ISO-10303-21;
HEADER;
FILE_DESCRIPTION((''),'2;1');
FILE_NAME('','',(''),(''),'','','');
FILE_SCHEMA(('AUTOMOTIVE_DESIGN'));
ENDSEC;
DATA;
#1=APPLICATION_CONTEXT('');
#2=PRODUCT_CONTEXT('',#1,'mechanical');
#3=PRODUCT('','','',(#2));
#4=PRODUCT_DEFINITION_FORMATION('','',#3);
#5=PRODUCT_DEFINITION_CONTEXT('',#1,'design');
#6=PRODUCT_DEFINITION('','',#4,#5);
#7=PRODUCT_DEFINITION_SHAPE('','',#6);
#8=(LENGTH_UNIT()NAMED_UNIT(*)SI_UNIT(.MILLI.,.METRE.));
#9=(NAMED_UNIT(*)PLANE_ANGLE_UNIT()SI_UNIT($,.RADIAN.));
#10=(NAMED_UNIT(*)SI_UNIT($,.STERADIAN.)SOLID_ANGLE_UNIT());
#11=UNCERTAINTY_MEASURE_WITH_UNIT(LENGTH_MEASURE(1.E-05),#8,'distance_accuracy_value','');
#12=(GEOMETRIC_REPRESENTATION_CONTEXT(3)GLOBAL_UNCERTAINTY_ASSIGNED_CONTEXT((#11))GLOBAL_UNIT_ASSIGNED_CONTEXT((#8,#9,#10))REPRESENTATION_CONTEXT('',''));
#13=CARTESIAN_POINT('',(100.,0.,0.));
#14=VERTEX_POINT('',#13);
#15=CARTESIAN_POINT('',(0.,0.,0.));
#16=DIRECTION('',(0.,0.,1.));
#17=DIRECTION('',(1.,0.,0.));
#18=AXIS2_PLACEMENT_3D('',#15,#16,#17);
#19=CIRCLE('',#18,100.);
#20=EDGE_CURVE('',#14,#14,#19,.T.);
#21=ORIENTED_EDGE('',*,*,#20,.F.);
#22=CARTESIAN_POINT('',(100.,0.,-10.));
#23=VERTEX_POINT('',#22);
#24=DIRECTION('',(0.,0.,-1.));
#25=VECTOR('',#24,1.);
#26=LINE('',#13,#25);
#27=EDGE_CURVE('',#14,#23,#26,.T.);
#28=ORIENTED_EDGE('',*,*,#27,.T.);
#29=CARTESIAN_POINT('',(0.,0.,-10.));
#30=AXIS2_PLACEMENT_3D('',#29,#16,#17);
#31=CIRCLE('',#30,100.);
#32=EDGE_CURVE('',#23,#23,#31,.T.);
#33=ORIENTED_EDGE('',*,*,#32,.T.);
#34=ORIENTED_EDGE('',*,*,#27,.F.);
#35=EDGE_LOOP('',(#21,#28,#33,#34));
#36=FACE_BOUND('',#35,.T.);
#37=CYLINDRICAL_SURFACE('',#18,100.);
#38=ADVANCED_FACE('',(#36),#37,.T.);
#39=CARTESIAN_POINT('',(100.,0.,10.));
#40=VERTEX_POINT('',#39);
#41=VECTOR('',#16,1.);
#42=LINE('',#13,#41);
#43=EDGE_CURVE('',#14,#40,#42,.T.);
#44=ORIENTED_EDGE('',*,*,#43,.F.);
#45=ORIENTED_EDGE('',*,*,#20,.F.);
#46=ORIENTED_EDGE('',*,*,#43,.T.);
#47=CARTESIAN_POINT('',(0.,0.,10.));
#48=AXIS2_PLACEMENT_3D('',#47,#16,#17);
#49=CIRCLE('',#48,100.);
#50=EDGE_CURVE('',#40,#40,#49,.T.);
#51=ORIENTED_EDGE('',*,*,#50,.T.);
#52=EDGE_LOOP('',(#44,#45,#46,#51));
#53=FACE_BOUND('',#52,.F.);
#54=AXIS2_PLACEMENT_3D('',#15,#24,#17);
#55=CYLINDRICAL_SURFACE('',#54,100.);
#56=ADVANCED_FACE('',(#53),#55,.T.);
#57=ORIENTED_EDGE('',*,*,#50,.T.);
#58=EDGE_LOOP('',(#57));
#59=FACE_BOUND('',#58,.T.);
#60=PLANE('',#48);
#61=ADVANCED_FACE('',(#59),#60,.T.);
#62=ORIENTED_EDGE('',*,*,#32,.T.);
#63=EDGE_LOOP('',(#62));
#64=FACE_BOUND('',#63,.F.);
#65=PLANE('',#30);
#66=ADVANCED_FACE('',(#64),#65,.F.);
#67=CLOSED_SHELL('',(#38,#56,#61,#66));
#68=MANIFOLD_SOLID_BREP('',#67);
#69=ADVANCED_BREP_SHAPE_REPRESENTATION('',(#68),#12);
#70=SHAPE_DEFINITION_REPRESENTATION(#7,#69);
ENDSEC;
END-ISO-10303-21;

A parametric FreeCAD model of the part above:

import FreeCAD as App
import Part
import Sketcher

V = App.Vector
Q = App.Units.Quantity

doc = App.newDocument("Part")
params = doc.addObject("Spreadsheet::Sheet", "Params")
for row, (alias, value) in enumerate([
    ("sketch1_diameter", "200 mm"),
    ("pad1_length", "20 mm"),
], start=1):
    params.set(f"A{row}", alias)
    params.set(f"B{row}", "=" + value)
    params.setAlias(f"B{row}", alias)

body = doc.addObject("PartDesign::Body", "Body")

sketch1 = body.newObject("Sketcher::SketchObject", "Sketch")
sketch1.AttachmentSupport = (doc.getObject("XY_Plane"), [""])
sketch1.MapMode = "FlatFace"
sketch1.addGeometry(Part.Circle(V(0, 0, 0), V(0, 0, 1), 100), False)
sketch1.addConstraint(Sketcher.Constraint("Coincident", 0, 3, -1, 1))
sketch1.addConstraint(Sketcher.Constraint("Diameter", 0, Q("200 mm")))
sketch1.setExpression("Constraints[1]", "Params.sketch1_diameter")
pad1 = body.newObject("PartDesign::Pad", "Pad")
pad1.Profile = sketch1
pad1.setExpression("Length", "Params.pad1_length")
pad1.Midplane = True

doc.recompute()
